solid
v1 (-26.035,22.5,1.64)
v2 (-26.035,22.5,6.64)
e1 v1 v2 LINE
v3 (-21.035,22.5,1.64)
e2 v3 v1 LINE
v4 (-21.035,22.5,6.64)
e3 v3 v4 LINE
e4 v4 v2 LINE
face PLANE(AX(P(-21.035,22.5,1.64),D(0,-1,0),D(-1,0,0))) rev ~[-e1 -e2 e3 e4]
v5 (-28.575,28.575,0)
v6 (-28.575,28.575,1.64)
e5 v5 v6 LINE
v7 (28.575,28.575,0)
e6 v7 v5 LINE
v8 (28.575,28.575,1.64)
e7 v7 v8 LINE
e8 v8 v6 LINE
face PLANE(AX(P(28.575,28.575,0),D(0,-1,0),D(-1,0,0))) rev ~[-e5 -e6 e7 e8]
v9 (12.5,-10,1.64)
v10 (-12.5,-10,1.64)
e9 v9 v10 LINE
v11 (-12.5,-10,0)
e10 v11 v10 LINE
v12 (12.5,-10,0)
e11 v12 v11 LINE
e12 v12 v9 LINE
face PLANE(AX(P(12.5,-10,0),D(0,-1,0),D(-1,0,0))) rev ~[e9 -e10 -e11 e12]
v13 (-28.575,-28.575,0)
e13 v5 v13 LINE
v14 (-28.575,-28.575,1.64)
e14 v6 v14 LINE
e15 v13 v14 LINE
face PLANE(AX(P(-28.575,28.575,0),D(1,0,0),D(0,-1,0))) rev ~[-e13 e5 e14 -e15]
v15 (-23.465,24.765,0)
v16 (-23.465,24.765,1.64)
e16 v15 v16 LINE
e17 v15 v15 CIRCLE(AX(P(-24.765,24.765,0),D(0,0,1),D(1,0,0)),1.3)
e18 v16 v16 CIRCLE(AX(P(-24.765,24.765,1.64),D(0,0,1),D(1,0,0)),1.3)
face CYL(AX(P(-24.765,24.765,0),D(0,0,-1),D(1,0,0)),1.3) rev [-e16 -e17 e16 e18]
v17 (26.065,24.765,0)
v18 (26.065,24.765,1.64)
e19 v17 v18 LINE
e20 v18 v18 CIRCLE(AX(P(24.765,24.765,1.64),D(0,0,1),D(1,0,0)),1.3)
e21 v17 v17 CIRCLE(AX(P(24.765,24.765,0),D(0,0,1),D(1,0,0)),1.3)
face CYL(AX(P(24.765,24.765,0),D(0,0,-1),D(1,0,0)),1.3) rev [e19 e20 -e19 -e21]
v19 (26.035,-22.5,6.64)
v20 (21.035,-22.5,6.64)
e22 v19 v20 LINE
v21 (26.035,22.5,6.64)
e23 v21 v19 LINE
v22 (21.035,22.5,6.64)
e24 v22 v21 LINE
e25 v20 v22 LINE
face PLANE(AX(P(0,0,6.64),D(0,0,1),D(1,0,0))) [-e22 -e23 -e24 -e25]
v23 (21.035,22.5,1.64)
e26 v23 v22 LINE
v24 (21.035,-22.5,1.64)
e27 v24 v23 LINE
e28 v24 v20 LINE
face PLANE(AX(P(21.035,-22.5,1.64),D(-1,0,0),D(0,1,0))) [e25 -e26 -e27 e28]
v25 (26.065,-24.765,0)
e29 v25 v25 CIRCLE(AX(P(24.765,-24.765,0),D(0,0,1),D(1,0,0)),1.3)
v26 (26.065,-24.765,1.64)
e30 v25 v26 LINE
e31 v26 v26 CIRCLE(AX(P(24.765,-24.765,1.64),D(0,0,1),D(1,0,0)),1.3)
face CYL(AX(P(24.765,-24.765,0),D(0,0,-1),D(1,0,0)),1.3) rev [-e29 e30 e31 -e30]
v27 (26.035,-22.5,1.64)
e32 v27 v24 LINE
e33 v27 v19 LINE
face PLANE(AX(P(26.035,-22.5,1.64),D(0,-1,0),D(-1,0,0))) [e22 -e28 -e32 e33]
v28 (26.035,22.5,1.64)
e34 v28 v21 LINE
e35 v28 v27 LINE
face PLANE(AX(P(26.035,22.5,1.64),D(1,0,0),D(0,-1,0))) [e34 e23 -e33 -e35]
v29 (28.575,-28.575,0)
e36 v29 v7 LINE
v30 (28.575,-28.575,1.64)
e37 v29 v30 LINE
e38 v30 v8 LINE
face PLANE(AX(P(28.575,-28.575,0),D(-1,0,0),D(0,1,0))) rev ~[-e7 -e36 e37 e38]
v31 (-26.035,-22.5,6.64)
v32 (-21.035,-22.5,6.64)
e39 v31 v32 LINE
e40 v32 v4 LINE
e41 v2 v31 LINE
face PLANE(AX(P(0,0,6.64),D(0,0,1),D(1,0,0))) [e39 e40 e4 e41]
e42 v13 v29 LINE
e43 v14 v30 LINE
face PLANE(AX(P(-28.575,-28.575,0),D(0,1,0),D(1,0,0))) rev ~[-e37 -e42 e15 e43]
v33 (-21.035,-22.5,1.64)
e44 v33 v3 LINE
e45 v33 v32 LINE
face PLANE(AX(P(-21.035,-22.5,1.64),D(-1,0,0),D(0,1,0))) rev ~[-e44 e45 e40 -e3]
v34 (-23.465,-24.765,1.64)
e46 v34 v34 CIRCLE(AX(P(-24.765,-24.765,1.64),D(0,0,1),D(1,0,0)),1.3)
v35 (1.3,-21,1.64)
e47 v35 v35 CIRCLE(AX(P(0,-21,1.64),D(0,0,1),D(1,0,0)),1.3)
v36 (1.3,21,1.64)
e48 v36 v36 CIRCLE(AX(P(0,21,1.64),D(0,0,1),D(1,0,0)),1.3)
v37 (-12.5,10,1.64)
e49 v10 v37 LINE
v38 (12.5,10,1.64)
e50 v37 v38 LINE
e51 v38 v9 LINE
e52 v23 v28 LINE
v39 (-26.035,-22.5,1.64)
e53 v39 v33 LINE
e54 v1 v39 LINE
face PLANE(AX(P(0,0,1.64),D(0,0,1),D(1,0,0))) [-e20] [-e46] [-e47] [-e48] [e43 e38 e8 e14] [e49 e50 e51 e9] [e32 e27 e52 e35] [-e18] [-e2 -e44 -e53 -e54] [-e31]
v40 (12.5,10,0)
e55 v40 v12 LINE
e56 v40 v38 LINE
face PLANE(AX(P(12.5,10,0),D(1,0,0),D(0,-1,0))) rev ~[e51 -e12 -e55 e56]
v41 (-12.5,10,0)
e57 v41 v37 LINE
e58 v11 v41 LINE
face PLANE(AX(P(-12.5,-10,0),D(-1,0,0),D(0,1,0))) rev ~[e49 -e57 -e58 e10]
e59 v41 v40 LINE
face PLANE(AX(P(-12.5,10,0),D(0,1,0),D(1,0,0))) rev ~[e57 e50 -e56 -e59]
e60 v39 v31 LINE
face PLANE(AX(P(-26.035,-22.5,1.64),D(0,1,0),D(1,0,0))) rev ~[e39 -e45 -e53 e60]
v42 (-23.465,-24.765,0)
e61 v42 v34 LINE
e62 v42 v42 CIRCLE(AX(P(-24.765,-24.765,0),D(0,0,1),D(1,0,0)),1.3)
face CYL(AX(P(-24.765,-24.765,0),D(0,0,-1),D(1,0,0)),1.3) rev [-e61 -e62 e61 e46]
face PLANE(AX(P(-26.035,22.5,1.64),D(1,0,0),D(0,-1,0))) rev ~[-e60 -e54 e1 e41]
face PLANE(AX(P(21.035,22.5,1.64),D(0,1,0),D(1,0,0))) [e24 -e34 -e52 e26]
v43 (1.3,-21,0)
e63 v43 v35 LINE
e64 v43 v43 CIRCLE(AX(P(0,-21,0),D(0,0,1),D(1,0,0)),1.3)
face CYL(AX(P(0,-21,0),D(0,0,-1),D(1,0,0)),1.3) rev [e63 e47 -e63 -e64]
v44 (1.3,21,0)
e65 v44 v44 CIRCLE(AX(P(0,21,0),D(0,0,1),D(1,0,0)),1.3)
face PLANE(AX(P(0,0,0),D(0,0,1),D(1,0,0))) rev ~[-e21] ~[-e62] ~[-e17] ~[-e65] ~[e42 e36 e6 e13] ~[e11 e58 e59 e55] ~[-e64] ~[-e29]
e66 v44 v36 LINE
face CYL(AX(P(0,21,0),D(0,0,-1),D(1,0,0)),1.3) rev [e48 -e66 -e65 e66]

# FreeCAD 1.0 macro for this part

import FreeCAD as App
import Part
import Sketcher
Q = App.Units.Quantity

doc = App.newDocument("Part")
body = doc.addObject("PartDesign::Body", "Body")

sketch1 = body.newObject("Sketcher::SketchObject", "Sketch")
sketch1.AttachmentSupport = (doc.getObject("XY_Plane"), [""])
sketch1.MapMode = "FlatFace"
sketch1.addGeometry(Part.LineSegment(App.Vector(-28.575, 28.575, 0), App.Vector(-28.575, -28.575, 0)), False)
sketch1.addGeometry(Part.LineSegment(App.Vector(-28.575, -28.575, 0), App.Vector(28.575, -28.575, 0)), False)
sketch1.addGeometry(Part.LineSegment(App.Vector(28.575, -28.575, 0), App.Vector(28.575, 28.575, 0)), False)
sketch1.addGeometry(Part.LineSegment(App.Vector(28.575, 28.575, 0), App.Vector(-28.575, 28.575, 0)), False)
sketch1.addGeometry(Part.Circle(App.Vector(-24.765, -24.765, 0), App.Vector(0, 0, 1), 1.3), False)
sketch1.addGeometry(Part.Circle(App.Vector(0, -21, 0), App.Vector(0, 0, 1), 1.3), False)
sketch1.addGeometry(Part.Circle(App.Vector(24.765, -24.765, 0), App.Vector(0, 0, 1), 1.3), False)
sketch1.addGeometry(Part.Circle(App.Vector(-24.765, 24.765, 0), App.Vector(0, 0, 1), 1.3), False)
sketch1.addGeometry(Part.LineSegment(App.Vector(-12.5, -10, 0), App.Vector(-12.5, 10, 0)), False)
sketch1.addGeometry(Part.LineSegment(App.Vector(-12.5, 10, 0), App.Vector(12.5, 10, 0)), False)
sketch1.addGeometry(Part.LineSegment(App.Vector(12.5, 10, 0), App.Vector(12.5, -10, 0)), False)
sketch1.addGeometry(Part.LineSegment(App.Vector(12.5, -10, 0), App.Vector(-12.5, -10, 0)), False)
sketch1.addGeometry(Part.Circle(App.Vector(0, 21, 0), App.Vector(0, 0, 1), 1.3), False)
sketch1.addGeometry(Part.Circle(App.Vector(24.765, 24.765, 0), App.Vector(0, 0, 1), 1.3), False)
sketch1.addConstraint(Sketcher.Constraint("Coincident", 0, 2, 1, 1))
sketch1.addConstraint(Sketcher.Constraint("Coincident", 1, 2, 2, 1))
sketch1.addConstraint(Sketcher.Constraint("Coincident", 2, 2, 3, 1))
sketch1.addConstraint(Sketcher.Constraint("Coincident", 3, 2, 0, 1))
sketch1.addConstraint(Sketcher.Constraint("Coincident", 8, 2, 9, 1))
sketch1.addConstraint(Sketcher.Constraint("Coincident", 9, 2, 10, 1))
sketch1.addConstraint(Sketcher.Constraint("Coincident", 10, 2, 11, 1))
sketch1.addConstraint(Sketcher.Constraint("Coincident", 11, 2, 8, 1))
sketch1.addConstraint(Sketcher.Constraint("Vertical", 0))
sketch1.addConstraint(Sketcher.Constraint("Horizontal", 1))
sketch1.addConstraint(Sketcher.Constraint("Vertical", 2))
sketch1.addConstraint(Sketcher.Constraint("Horizontal", 3))
sketch1.addConstraint(Sketcher.Constraint("Vertical", 8))
sketch1.addConstraint(Sketcher.Constraint("Horizontal", 9))
sketch1.addConstraint(Sketcher.Constraint("Vertical", 10))
sketch1.addConstraint(Sketcher.Constraint("Horizontal", 11))
sketch1.addConstraint(Sketcher.Constraint("Equal", 4, 5))
sketch1.addConstraint(Sketcher.Constraint("Equal", 5, 6))
sketch1.addConstraint(Sketcher.Constraint("Equal", 6, 7))
sketch1.addConstraint(Sketcher.Constraint("Equal", 7, 12))
sketch1.addConstraint(Sketcher.Constraint("Equal", 12, 13))
sketch1.addConstraint(Sketcher.Constraint("Symmetric", 6, 3, 7, 3, -1, 1))
sketch1.addConstraint(Sketcher.Constraint("Symmetric", 5, 3, 12, 3, -1, 1))
sketch1.addConstraint(Sketcher.Constraint("Symmetric", 4, 3, 13, 3, -1, 1))
sketch1.addConstraint(Sketcher.Constraint("Symmetric", 0, 2, 2, 2, -1, 1))
sketch1.addConstraint(Sketcher.Constraint("Symmetric", 8, 2, 10, 2, -1, 1))
sketch1.addConstraint(Sketcher.Constraint("Symmetric", 4, 3, 6, 3, -2))
sketch1.addConstraint(Sketcher.Constraint("PointOnObject", 5, 3, -2))
sketch1.addConstraint(Sketcher.Constraint("Equal", 3, 0))
sketch1.addConstraint(Sketcher.Constraint("Diameter", 4, Q("2.6 mm")))
sketch1.addConstraint(Sketcher.Constraint("DistanceX", 9, 1, 9, 2, Q("25 mm")))
sketch1.addConstraint(Sketcher.Constraint("DistanceY", 8, 1, 8, 2, Q("20 mm")))
sketch1.addConstraint(Sketcher.Constraint("DistanceY", 5, 3, 12, 3, Q("42 mm")))
sketch1.addConstraint(Sketcher.Constraint("DistanceX", 1, 1, 1, 2, Q("57.15 mm")))
sketch1.addConstraint(Sketcher.Constraint("DistanceX", 0, 2, 4, 3, Q("3.81 mm")))
sketch1.addConstraint(Sketcher.Constraint("DistanceY", 0, 2, 4, 3, Q("3.81 mm")))
pad1 = body.newObject("PartDesign::Pad", "Pad")
pad1.Profile = sketch1
pad1.Length = 1.64

sketch2 = body.newObject("Sketcher::SketchObject", "Sketch001")
sketch2.AttachmentSupport = (doc.getObject("XY_Plane"), [""])
sketch2.MapMode = "FlatFace"
sketch2.AttachmentOffset = App.Placement(App.Vector(0, 0, 1.64), App.Rotation())
sketch2.addGeometry(Part.LineSegment(App.Vector(26.035, 22.5, 0), App.Vector(21.035, 22.5, 0)), False)
sketch2.addGeometry(Part.LineSegment(App.Vector(21.035, 22.5, 0), App.Vector(21.035, -22.5, 0)), False)
sketch2.addGeometry(Part.LineSegment(App.Vector(21.035, -22.5, 0), App.Vector(26.035, -22.5, 0)), False)
sketch2.addGeometry(Part.LineSegment(App.Vector(26.035, -22.5, 0), App.Vector(26.035, 22.5, 0)), False)
sketch2.addGeometry(Part.LineSegment(App.Vector(-21.035, -22.5, 0), App.Vector(-21.035, 22.5, 0)), False)
sketch2.addGeometry(Part.LineSegment(App.Vector(-21.035, 22.5, 0), App.Vector(-26.035, 22.5, 0)), False)
sketch2.addGeometry(Part.LineSegment(App.Vector(-26.035, 22.5, 0), App.Vector(-26.035, -22.5, 0)), False)
sketch2.addGeometry(Part.LineSegment(App.Vector(-26.035, -22.5, 0), App.Vector(-21.035, -22.5, 0)), False)
sketch2.addConstraint(Sketcher.Constraint("Coincident", 0, 2, 1, 1))
sketch2.addConstraint(Sketcher.Constraint("Coincident", 1, 2, 2, 1))
sketch2.addConstraint(Sketcher.Constraint("Coincident", 2, 2, 3, 1))
sketch2.addConstraint(Sketcher.Constraint("Coincident", 3, 2, 0, 1))
sketch2.addConstraint(Sketcher.Constraint("Coincident", 4, 2, 5, 1))
sketch2.addConstraint(Sketcher.Constraint("Coincident", 5, 2, 6, 1))
sketch2.addConstraint(Sketcher.Constraint("Coincident", 6, 2, 7, 1))
sketch2.addConstraint(Sketcher.Constraint("Coincident", 7, 2, 4, 1))
sketch2.addConstraint(Sketcher.Constraint("Horizontal", 0))
sketch2.addConstraint(Sketcher.Constraint("Vertical", 1))
sketch2.addConstraint(Sketcher.Constraint("Horizontal", 2))
sketch2.addConstraint(Sketcher.Constraint("Vertical", 3))
sketch2.addConstraint(Sketcher.Constraint("Vertical", 4))
sketch2.addConstraint(Sketcher.Constraint("Horizontal", 5))
sketch2.addConstraint(Sketcher.Constraint("Vertical", 6))
sketch2.addConstraint(Sketcher.Constraint("Horizontal", 7))
sketch2.addConstraint(Sketcher.Constraint("Symmetric", 1, 2, 4, 2, -1, 1))
sketch2.addConstraint(Sketcher.Constraint("Symmetric", 3, 2, 6, 2, -1, 1))
sketch2.addConstraint(Sketcher.Constraint("Horizontal", 3, 2, 4, 2))
sketch2.addConstraint(Sketcher.Constraint("DistanceX", 0, 2, 0, 1, Q("5 mm")))
sketch2.addConstraint(Sketcher.Constraint("DistanceY", 1, 2, 1, 1, Q("45 mm")))
sketch2.addConstraint(Sketcher.Constraint("DistanceX", 4, 2, 0, 2, Q("42.07 mm")))
pad2 = body.newObject("PartDesign::Pad", "Pad001")
pad2.Profile = sketch2
pad2.Length = 5

doc.recompute()
